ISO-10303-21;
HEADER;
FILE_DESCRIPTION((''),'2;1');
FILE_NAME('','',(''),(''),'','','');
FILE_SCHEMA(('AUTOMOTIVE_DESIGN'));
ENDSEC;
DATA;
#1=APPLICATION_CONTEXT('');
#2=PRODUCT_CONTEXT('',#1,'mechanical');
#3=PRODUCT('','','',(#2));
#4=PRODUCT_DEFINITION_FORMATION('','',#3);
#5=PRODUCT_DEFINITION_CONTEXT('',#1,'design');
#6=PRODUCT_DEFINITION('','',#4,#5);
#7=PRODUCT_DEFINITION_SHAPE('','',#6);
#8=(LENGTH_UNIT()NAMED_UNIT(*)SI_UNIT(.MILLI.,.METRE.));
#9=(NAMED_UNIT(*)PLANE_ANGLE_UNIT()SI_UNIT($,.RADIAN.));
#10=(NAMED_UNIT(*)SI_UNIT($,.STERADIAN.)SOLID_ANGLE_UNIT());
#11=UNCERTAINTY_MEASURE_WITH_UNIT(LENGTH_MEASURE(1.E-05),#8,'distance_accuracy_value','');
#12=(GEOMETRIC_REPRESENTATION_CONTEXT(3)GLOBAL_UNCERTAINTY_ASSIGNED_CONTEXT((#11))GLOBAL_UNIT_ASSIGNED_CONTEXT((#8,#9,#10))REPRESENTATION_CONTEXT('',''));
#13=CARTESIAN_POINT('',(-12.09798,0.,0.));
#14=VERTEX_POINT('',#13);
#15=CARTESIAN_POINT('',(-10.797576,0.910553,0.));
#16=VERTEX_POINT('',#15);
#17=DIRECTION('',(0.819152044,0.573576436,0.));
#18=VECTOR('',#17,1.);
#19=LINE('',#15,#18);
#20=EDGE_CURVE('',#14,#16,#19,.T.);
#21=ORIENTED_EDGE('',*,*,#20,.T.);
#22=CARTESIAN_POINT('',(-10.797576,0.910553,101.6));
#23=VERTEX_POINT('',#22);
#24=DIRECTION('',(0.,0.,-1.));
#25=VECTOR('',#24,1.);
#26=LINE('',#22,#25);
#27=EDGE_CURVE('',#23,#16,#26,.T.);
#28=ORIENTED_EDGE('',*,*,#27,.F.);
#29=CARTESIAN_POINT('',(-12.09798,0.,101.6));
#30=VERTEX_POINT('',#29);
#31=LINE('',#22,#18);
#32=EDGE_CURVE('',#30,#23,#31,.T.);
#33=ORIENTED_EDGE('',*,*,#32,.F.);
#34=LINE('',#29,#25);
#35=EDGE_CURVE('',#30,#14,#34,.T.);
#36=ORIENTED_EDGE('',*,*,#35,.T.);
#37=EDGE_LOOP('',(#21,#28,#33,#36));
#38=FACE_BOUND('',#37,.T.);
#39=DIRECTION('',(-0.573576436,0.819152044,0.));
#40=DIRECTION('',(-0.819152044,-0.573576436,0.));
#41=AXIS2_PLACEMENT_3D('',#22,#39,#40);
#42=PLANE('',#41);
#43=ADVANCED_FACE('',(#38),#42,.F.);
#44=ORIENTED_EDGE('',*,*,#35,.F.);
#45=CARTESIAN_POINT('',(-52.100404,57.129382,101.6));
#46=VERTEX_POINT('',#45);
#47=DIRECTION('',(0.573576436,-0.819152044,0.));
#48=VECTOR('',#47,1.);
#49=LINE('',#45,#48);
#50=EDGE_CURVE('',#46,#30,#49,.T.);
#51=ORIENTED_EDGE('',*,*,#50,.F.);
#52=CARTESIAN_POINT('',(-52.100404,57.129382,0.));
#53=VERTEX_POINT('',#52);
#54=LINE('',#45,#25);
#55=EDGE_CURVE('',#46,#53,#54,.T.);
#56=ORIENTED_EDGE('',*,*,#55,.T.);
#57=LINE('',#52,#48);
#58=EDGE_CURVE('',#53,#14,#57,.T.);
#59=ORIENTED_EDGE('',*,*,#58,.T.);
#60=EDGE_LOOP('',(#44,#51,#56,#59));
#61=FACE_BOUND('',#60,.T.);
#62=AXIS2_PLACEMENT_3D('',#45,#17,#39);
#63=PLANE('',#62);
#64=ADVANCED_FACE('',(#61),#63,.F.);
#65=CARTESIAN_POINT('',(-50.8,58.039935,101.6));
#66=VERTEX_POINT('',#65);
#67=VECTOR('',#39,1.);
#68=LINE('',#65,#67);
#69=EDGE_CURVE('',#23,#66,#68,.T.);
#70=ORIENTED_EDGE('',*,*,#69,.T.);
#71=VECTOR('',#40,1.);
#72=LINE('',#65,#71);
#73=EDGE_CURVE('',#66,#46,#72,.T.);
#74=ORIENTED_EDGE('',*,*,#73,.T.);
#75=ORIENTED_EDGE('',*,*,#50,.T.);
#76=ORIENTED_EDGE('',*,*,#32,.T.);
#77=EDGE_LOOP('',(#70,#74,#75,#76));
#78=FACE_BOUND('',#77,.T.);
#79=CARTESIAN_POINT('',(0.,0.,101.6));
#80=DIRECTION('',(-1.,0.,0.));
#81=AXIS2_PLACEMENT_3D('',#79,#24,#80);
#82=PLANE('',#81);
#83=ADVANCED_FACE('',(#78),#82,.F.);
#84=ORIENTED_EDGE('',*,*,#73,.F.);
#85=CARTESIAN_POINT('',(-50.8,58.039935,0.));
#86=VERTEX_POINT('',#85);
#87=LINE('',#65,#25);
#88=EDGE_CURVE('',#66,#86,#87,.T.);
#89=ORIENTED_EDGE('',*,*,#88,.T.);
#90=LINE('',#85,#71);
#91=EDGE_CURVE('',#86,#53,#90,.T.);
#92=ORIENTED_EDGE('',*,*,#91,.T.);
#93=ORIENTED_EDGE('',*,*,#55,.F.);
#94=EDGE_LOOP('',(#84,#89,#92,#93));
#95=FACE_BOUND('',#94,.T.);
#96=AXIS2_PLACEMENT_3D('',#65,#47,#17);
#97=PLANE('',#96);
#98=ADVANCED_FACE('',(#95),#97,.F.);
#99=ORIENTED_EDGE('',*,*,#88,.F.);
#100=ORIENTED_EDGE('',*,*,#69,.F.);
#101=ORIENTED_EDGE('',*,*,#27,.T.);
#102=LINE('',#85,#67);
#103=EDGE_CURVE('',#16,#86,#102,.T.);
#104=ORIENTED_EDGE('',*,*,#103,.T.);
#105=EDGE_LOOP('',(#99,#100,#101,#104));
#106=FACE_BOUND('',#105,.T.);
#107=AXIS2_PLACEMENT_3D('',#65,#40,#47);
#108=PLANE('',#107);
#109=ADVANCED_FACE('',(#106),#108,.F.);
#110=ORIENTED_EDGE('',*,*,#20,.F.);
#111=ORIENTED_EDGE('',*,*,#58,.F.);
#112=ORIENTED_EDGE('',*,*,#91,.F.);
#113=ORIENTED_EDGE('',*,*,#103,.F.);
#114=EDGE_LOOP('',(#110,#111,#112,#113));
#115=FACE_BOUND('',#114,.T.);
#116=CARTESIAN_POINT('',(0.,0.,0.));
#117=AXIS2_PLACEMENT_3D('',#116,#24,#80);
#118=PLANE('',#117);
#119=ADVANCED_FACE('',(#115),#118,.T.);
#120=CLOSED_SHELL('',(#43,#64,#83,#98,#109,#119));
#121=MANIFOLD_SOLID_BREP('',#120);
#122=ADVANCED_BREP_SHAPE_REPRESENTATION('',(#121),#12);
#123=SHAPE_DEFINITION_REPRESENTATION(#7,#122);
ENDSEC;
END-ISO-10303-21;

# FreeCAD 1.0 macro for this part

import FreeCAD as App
import Part
import Sketcher
from FreeCAD import Vector
Q = App.Units.Quantity

doc = App.newDocument("Part")
body = doc.addObject("PartDesign::Body", "Body")

sketch1 = body.newObject("Sketcher::SketchObject", "Sketch")
sketch1.AttachmentSupport = (doc.getObject("XY_Plane"), [""])
sketch1.MapMode = "FlatFace"
sketch1.addGeometry([
    Part.LineSegment(Vector(-12.1, 0, 0), Vector(-10.8, 0.9, 0)),
    Part.LineSegment(Vector(-10.8, 0.9, 0), Vector(-50.8, 58, 0)),
    Part.LineSegment(Vector(-50.8, 58, 0), Vector(-52.1, 57.1, 0)),
    Part.LineSegment(Vector(-52.1, 57.1, 0), Vector(-12.1, 0, 0)),
], False)
sketch1.addConstraint([
    Sketcher.Constraint("Coincident", 0, 2, 1, 1),
    Sketcher.Constraint("Coincident", 1, 2, 2, 1),
    Sketcher.Constraint("Coincident", 2, 2, 3, 1),
    Sketcher.Constraint("Coincident", 3, 2, 0, 1),
    Sketcher.Constraint("PointOnObject", 3, 2, -1),
    Sketcher.Constraint("Perpendicular", 0, 1),
    Sketcher.Constraint("Perpendicular", 1, 2),
    Sketcher.Constraint("Perpendicular", 2, 3),
    Sketcher.Constraint("DistanceX", 1, 2, -1, 1, Q("2 in")),
    Sketcher.Constraint("Angle", 0, Q("35 deg")),
    Sketcher.Constraint("Distance", 0, Q("0.0625 in")),
    Sketcher.Constraint("Distance", 1, Q("69.742098 mm")),
])
pad1 = body.newObject("PartDesign::Pad", "Pad")
pad1.Profile = sketch1
pad1.Length = Q("4 in")

doc.recompute()
